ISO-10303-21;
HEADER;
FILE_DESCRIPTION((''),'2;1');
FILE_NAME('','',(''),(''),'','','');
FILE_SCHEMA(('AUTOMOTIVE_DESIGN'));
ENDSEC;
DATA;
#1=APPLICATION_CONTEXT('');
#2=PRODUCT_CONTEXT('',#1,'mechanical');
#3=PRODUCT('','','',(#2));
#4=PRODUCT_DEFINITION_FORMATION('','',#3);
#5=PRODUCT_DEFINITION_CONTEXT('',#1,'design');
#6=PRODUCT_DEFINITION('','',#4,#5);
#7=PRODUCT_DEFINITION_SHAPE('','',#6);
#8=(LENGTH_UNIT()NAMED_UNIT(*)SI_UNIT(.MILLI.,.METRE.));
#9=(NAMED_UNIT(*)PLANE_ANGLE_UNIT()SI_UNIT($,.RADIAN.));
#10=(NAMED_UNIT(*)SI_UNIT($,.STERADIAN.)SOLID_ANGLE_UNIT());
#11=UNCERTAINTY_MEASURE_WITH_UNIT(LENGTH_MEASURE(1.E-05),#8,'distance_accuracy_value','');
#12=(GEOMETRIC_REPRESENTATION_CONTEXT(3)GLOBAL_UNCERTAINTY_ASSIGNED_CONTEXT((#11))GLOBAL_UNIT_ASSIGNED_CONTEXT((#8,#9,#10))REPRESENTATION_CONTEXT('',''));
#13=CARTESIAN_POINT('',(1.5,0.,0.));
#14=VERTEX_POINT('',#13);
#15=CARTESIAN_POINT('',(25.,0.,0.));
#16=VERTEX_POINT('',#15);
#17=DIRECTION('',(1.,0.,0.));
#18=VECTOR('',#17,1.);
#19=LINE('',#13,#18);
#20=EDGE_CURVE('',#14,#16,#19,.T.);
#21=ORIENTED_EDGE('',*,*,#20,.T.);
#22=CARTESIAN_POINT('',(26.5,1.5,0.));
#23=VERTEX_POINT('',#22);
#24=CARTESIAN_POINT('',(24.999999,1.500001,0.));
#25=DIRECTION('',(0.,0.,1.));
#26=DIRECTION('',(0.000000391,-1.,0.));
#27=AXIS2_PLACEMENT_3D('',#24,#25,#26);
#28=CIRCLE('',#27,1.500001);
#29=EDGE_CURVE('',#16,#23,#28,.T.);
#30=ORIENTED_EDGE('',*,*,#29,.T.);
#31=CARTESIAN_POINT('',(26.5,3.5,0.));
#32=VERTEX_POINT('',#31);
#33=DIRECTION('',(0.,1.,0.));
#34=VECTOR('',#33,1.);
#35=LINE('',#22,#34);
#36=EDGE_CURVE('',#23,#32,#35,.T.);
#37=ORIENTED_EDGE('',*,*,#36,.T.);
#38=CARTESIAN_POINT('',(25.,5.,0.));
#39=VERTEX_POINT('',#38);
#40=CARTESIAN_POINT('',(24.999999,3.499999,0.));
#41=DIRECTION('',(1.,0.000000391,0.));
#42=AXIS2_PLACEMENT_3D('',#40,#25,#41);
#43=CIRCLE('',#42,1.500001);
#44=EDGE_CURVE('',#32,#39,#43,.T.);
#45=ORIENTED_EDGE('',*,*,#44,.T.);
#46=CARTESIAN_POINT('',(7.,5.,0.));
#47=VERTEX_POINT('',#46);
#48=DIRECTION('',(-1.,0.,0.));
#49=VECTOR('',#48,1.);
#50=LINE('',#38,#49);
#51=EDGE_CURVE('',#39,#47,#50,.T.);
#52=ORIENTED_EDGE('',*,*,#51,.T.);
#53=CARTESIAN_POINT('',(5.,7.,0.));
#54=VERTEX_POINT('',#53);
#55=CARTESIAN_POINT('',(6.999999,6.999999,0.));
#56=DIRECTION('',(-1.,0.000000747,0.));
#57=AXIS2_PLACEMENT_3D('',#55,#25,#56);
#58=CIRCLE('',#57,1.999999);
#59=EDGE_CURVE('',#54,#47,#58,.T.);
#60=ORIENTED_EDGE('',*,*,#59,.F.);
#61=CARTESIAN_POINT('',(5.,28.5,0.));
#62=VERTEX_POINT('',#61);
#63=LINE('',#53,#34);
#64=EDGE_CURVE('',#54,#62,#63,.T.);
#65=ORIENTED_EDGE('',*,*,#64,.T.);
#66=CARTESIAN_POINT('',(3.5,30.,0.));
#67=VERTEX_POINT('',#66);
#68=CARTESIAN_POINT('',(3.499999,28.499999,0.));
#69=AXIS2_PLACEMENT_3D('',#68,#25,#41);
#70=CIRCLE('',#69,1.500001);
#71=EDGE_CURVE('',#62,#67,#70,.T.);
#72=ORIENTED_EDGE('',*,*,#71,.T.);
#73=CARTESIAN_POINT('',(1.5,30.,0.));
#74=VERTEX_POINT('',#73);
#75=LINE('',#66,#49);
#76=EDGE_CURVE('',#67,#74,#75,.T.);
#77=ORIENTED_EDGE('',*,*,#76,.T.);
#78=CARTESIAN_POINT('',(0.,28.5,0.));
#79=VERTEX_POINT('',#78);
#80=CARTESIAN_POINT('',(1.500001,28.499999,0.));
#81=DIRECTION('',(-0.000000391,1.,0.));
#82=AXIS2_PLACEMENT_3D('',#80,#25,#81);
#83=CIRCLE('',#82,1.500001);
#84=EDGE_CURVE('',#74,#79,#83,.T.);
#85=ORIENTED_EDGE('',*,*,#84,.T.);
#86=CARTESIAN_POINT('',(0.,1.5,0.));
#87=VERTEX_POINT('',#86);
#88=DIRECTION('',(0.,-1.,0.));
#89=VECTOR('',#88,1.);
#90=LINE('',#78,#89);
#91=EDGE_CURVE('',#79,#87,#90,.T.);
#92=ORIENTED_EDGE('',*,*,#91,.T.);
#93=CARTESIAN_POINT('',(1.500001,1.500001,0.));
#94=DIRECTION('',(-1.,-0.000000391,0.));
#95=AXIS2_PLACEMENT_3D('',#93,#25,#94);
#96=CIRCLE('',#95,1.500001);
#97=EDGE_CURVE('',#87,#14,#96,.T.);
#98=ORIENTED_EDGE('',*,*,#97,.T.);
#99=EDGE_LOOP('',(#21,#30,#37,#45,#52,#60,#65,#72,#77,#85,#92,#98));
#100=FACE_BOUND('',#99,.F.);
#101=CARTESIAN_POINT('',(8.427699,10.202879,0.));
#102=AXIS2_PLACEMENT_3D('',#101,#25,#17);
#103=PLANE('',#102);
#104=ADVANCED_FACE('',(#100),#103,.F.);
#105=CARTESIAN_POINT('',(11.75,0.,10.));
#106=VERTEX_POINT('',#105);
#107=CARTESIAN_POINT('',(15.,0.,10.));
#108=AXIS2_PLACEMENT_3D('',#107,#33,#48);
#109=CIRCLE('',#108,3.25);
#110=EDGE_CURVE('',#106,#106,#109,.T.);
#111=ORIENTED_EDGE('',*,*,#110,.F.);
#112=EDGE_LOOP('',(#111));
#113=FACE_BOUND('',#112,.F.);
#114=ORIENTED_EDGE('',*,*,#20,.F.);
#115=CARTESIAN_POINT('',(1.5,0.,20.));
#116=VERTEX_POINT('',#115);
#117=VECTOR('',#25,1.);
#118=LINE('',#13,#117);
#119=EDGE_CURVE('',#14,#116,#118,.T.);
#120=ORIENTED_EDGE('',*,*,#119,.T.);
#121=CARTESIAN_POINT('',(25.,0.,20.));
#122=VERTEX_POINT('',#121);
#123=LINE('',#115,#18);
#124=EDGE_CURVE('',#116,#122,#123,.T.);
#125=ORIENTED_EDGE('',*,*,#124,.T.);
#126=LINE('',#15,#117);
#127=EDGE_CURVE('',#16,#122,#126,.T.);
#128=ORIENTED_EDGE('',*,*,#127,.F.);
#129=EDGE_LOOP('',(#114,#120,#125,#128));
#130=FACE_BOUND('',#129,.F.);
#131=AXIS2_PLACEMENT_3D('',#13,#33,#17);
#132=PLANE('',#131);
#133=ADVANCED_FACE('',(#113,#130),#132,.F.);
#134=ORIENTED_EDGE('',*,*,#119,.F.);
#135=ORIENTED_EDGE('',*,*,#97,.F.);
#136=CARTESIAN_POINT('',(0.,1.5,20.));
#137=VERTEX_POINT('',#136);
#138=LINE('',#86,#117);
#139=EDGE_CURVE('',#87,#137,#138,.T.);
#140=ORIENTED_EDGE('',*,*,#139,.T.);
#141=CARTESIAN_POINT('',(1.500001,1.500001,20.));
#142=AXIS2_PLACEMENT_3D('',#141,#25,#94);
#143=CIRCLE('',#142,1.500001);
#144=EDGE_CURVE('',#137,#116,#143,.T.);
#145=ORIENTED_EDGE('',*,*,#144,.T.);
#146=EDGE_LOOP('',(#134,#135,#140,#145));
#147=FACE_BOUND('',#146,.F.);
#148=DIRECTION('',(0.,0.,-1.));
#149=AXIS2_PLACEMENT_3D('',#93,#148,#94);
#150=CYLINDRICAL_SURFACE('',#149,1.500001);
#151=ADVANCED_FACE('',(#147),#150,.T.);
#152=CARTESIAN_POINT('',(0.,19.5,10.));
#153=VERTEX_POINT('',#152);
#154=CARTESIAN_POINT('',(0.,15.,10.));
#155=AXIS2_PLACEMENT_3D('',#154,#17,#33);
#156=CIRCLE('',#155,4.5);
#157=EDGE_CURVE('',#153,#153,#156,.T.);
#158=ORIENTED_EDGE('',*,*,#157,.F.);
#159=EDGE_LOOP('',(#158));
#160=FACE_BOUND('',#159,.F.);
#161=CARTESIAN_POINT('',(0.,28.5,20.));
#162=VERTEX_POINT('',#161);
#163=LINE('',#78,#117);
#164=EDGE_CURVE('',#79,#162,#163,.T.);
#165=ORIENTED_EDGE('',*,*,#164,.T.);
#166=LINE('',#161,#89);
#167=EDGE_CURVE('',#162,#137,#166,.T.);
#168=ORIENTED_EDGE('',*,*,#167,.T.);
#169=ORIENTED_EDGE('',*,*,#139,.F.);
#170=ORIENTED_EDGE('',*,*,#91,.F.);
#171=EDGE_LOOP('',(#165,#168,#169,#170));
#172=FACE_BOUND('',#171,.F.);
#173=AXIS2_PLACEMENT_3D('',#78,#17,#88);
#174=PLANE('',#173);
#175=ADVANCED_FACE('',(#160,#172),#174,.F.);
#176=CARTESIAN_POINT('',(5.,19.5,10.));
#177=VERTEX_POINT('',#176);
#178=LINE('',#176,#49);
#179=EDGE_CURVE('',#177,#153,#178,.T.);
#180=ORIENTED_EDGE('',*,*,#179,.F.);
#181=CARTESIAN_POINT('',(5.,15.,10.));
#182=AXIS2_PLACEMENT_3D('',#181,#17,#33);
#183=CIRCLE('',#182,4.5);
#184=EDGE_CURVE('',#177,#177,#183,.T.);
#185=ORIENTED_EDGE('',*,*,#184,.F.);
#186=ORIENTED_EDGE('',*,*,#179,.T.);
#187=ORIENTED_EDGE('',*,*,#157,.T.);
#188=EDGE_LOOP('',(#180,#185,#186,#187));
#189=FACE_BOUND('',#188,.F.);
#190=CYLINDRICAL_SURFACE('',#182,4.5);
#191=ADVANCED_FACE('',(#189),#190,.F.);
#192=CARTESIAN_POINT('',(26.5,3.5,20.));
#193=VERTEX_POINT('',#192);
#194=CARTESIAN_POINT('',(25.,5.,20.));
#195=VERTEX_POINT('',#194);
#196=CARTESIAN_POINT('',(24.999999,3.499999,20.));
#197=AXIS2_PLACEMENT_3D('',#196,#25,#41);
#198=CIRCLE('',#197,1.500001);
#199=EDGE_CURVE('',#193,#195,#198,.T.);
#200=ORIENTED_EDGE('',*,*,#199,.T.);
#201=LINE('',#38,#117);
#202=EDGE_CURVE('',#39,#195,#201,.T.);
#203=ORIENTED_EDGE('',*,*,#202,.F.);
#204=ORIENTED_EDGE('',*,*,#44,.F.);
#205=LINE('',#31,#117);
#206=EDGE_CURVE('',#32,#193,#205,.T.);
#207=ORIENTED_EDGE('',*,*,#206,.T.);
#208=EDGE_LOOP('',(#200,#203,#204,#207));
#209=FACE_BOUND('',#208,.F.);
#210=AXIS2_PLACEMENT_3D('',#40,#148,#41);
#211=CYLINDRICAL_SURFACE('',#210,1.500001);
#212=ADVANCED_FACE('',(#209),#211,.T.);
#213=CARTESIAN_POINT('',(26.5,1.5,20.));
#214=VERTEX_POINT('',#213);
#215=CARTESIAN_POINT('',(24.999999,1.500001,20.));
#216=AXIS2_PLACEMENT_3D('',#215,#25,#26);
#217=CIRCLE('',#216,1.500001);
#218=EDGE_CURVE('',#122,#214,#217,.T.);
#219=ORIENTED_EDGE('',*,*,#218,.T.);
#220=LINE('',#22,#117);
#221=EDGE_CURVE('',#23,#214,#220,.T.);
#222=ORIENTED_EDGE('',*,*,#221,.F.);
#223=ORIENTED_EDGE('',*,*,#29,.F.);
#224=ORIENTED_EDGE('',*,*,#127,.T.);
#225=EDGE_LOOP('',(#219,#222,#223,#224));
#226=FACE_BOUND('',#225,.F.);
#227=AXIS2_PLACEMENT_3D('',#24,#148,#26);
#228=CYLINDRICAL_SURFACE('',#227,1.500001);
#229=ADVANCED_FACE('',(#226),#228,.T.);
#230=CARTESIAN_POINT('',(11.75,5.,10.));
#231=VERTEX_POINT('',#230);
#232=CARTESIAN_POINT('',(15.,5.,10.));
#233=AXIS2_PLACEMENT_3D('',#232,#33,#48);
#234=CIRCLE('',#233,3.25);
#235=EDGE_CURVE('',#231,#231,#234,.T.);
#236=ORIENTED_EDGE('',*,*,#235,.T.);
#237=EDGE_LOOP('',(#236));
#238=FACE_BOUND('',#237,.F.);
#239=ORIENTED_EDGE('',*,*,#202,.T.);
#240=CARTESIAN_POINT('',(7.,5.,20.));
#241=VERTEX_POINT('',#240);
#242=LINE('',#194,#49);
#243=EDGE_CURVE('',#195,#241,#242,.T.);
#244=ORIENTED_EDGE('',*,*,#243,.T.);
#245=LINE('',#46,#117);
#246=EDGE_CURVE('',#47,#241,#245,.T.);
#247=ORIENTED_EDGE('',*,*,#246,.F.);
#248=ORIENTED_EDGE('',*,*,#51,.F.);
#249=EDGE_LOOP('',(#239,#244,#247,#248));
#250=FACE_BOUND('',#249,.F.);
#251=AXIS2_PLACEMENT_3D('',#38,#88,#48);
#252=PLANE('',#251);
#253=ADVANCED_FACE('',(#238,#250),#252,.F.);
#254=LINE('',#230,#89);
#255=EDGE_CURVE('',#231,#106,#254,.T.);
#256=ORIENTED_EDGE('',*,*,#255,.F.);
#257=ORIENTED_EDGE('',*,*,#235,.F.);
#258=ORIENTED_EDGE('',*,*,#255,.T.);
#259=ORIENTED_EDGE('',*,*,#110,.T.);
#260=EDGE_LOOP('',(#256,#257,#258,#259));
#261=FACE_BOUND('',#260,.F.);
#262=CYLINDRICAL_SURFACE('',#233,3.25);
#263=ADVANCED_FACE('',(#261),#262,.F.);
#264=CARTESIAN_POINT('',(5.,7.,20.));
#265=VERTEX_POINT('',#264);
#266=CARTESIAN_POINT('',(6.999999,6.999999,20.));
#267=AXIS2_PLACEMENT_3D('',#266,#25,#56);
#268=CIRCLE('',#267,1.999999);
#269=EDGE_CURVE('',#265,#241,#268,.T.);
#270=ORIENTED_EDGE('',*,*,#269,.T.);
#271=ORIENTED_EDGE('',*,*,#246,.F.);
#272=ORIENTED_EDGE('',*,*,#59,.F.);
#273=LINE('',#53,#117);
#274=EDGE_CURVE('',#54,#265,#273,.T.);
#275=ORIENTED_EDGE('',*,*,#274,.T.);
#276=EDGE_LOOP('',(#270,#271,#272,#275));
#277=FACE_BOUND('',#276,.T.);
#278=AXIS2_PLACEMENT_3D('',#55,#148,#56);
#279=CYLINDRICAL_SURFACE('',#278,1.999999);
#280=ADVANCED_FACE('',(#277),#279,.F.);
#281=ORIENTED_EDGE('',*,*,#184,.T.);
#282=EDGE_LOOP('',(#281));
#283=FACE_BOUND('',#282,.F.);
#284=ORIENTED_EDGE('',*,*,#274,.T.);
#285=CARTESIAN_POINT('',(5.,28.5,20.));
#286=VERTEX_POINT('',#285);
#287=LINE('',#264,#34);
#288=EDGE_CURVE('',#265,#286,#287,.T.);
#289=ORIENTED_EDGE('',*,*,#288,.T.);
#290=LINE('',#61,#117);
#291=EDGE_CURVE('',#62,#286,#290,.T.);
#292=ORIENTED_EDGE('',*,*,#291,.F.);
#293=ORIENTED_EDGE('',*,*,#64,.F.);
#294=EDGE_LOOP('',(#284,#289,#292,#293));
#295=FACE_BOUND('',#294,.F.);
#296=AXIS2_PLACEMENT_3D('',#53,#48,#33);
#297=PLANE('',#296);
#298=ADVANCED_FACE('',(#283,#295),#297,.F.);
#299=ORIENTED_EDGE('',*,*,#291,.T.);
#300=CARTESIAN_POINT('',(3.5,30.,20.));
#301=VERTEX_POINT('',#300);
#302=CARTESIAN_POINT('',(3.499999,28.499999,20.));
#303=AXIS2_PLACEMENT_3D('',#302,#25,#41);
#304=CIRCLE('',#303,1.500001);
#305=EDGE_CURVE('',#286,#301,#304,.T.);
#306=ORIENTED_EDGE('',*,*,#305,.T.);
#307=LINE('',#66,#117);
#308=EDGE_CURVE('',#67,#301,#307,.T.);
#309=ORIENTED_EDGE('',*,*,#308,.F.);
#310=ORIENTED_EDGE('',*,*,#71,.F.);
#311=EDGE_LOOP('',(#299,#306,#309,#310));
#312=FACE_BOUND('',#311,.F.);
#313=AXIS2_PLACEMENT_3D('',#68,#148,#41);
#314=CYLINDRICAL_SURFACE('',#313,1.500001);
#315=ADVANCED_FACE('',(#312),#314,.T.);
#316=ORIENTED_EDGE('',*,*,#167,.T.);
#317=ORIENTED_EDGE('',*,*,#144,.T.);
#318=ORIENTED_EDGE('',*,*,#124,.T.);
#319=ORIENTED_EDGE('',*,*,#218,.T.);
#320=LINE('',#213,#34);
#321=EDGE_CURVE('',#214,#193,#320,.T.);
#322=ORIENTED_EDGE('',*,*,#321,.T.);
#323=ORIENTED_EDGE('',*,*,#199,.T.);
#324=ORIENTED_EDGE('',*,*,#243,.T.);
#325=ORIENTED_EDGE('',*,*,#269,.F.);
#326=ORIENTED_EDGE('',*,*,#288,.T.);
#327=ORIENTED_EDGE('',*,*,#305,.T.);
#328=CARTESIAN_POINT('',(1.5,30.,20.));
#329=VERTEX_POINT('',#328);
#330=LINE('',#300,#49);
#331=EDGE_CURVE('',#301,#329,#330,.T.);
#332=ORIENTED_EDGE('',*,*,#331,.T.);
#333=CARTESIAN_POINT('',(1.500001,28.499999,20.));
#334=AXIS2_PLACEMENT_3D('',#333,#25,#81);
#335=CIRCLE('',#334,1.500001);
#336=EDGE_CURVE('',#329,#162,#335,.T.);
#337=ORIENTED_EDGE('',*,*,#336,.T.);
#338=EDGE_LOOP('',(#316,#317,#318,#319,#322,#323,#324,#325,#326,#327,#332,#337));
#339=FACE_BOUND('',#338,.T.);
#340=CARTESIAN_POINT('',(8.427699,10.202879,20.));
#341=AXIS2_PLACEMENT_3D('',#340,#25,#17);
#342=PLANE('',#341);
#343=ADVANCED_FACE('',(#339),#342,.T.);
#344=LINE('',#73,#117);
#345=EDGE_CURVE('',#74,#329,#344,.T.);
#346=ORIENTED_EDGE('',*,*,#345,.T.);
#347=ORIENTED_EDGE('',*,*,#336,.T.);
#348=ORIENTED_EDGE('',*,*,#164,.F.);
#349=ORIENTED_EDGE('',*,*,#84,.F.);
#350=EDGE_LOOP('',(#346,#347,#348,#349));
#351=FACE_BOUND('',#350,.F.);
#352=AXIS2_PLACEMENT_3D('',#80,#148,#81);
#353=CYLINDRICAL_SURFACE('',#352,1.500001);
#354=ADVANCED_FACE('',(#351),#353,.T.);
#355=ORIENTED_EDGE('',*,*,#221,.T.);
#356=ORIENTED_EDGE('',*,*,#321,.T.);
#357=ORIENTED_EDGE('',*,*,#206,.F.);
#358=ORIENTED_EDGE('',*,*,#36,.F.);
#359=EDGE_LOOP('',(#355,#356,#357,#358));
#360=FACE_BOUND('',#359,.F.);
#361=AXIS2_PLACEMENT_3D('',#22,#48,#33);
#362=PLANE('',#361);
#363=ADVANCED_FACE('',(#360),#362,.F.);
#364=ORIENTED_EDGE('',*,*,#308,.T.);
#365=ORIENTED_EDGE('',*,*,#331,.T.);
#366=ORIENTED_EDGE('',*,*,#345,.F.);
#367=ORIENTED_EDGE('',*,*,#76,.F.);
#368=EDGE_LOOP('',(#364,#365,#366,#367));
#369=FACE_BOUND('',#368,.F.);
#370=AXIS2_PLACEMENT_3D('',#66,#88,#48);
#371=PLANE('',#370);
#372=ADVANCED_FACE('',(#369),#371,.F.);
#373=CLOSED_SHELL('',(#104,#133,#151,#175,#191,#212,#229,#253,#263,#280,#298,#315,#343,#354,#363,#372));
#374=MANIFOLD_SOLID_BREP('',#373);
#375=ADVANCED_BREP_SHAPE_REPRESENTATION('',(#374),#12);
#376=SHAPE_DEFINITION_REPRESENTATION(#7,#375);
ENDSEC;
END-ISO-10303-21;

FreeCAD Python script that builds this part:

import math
import FreeCAD as App
import Part
import Sketcher
from FreeCAD import Vector

doc = App.newDocument("Part")
body = doc.addObject("PartDesign::Body", "Body")

# Sketch on XY plane
sketch1 = body.newObject("Sketcher::SketchObject", "Sketch")
sketch1.AttachmentSupport = (doc.getObject("XY_Plane"), [""])
sketch1.MapMode = "FlatFace"
sketch1.addGeometry(Part.LineSegment(Vector(0, 28.5, 0), Vector(0, 1.5, 0)), False)
sketch1.addGeometry(Part.ArcOfCircle(Part.Circle(Vector(1.500001, 1.500001, 0), Vector(0, 0, 1), 1.500001), math.radians(-179.999978), math.radians(-90.000022)), False)
sketch1.addGeometry(Part.LineSegment(Vector(1.5, 0, 0), Vector(25, 0, 0)), False)
sketch1.addGeometry(Part.ArcOfCircle(Part.Circle(Vector(24.999999, 1.500001, 0), Vector(0, 0, 1), 1.500001), math.radians(-89.999978), math.radians(-0.000022)), False)
sketch1.addGeometry(Part.LineSegment(Vector(26.5, 1.5, 0), Vector(26.5, 3.5, 0)), False)
sketch1.addGeometry(Part.ArcOfCircle(Part.Circle(Vector(24.999999, 3.499999, 0), Vector(0, 0, 1), 1.500001), math.radians(0.000022), math.radians(89.999978)), False)
sketch1.addGeometry(Part.LineSegment(Vector(25, 5, 0), Vector(7, 5, 0)), False)
sketch1.addGeometry(Part.ArcOfCircle(Part.Circle(Vector(6.999999, 6.999999, 0), Vector(0, 0, 1), 1.999999), math.radians(179.999957), math.radians(270.000043)), False)
sketch1.addGeometry(Part.LineSegment(Vector(5, 7, 0), Vector(5, 28.5, 0)), False)
sketch1.addGeometry(Part.ArcOfCircle(Part.Circle(Vector(3.499999, 28.499999, 0), Vector(0, 0, 1), 1.500001), math.radians(0.000022), math.radians(89.999978)), False)
sketch1.addGeometry(Part.LineSegment(Vector(3.5, 30, 0), Vector(1.5, 30, 0)), False)
sketch1.addGeometry(Part.ArcOfCircle(Part.Circle(Vector(1.500001, 28.499999, 0), Vector(0, 0, 1), 1.500001), math.radians(90.000022), math.radians(179.999978)), False)
sketch1.addConstraint(Sketcher.Constraint("Tangent", 0, 2, 1, 1))
sketch1.addConstraint(Sketcher.Constraint("Tangent", 1, 2, 2, 1))
sketch1.addConstraint(Sketcher.Constraint("Tangent", 2, 2, 3, 1))
sketch1.addConstraint(Sketcher.Constraint("Tangent", 3, 2, 4, 1))
sketch1.addConstraint(Sketcher.Constraint("Tangent", 4, 2, 5, 1))
sketch1.addConstraint(Sketcher.Constraint("Tangent", 5, 2, 6, 1))
sketch1.addConstraint(Sketcher.Constraint("Tangent", 6, 2, 7, 2))
sketch1.addConstraint(Sketcher.Constraint("Tangent", 7, 1, 8, 1))
sketch1.addConstraint(Sketcher.Constraint("Tangent", 8, 2, 9, 1))
sketch1.addConstraint(Sketcher.Constraint("Tangent", 9, 2, 10, 1))
sketch1.addConstraint(Sketcher.Constraint("Tangent", 10, 2, 11, 1))
sketch1.addConstraint(Sketcher.Constraint("Tangent", 11, 2, 0, 1))
sketch1.addConstraint(Sketcher.Constraint("Vertical", 0))
sketch1.addConstraint(Sketcher.Constraint("Horizontal", 2))
sketch1.addConstraint(Sketcher.Constraint("Vertical", 4))
sketch1.addConstraint(Sketcher.Constraint("Horizontal", 6))
sketch1.addConstraint(Sketcher.Constraint("Vertical", 8))
sketch1.addConstraint(Sketcher.Constraint("Horizontal", 10))
sketch1.addConstraint(Sketcher.Constraint("Equal", 1, 3))
sketch1.addConstraint(Sketcher.Constraint("Equal", 3, 5))
sketch1.addConstraint(Sketcher.Constraint("Equal", 5, 9))
sketch1.addConstraint(Sketcher.Constraint("Equal", 9, 11))
sketch1.addConstraint(Sketcher.Constraint("PointOnObject", 0, 2, -2))
sketch1.addConstraint(Sketcher.Constraint("PointOnObject", 1, 2, -1))
sketch1.addConstraint(Sketcher.Constraint("Equal", 10, 4))
sketch1.addConstraint(Sketcher.Constraint("Radius", 7, 1.999999))
sketch1.addConstraint(Sketcher.Constraint("Radius", 1, 1.500001))
sketch1.addConstraint(Sketcher.Constraint("DistanceX", 6, 2, 6, 1, 18.0))
sketch1.addConstraint(Sketcher.Constraint("DistanceX", 10, 2, 10, 1, 2.0))
sketch1.addConstraint(Sketcher.Constraint("DistanceY", 0, 2, 0, 1, 27.0))
pad1 = body.newObject("PartDesign::Pad", "Pad")
pad1.Profile = sketch1
pad1.Length = 20

# Sketch on YZ plane
sketch2 = body.newObject("Sketcher::SketchObject", "Sketch001")
sketch2.AttachmentSupport = (doc.getObject("YZ_Plane"), [""])
sketch2.MapMode = "FlatFace"
sketch2.AttachmentOffset = App.Placement(Vector(0, 0, 5), App.Rotation())
sketch2.addGeometry(Part.Circle(Vector(15, 10, 0), Vector(0, 0, 1), 4.5), False)
sketch2.addConstraint(Sketcher.Constraint("Diameter", 0, 9.0))
sketch2.addConstraint(Sketcher.Constraint("DistanceX", -1, 1, 0, 3, 15.0))
sketch2.addConstraint(Sketcher.Constraint("DistanceY", -1, 1, 0, 3, 10.0))
pocket1 = body.newObject("PartDesign::Pocket", "Pocket")
pocket1.Profile = sketch2
pocket1.Length = 5

# Sketch on XZ plane
sketch3 = body.newObject("Sketcher::SketchObject", "Sketch002")
sketch3.AttachmentSupport = (doc.getObject("XZ_Plane"), [""])
sketch3.MapMode = "FlatFace"
sketch3.AttachmentOffset = App.Placement(Vector(0, 0, -5), App.Rotation())
sketch3.addGeometry(Part.Circle(Vector(15, 10, 0), Vector(0, 0, 1), 3.25), False)
sketch3.addConstraint(Sketcher.Constraint("Diameter", 0, 6.5))
sketch3.addConstraint(Sketcher.Constraint("DistanceX", -1, 1, 0, 3, 15.0))
sketch3.addConstraint(Sketcher.Constraint("DistanceY", -1, 1, 0, 3, 10.0))
pocket2 = body.newObject("PartDesign::Pocket", "Pocket001")
pocket2.Profile = sketch3
pocket2.Length = 5
pocket2.Reversed = True

doc.recompute()
